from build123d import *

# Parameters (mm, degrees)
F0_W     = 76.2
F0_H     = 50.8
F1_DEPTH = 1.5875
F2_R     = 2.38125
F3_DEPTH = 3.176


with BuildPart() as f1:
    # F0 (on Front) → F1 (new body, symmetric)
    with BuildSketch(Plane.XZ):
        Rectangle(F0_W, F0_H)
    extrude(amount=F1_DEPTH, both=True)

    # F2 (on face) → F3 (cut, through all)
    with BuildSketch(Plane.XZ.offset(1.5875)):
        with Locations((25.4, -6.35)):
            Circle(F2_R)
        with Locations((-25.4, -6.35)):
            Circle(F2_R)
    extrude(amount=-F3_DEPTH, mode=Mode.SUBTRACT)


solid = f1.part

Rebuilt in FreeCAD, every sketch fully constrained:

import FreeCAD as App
import Part
import Sketcher
Q = App.Units.Quantity

doc = App.newDocument("Part")
body = doc.addObject("PartDesign::Body", "Body")

# Sketch on XZ plane
sketch1 = body.newObject("Sketcher::SketchObject", "Sketch")
sketch1.AttachmentSupport = (doc.getObject("XZ_Plane"), [""])
sketch1.MapMode = "FlatFace"
sketch1.addGeometry(Part.LineSegment(App.Vector(-38, 25, 0), App.Vector(-38, -25, 0)), False)
sketch1.addGeometry(Part.LineSegment(App.Vector(-38, -25, 0), App.Vector(38, -25, 0)), False)
sketch1.addGeometry(Part.LineSegment(App.Vector(38, -25, 0), App.Vector(38, 25, 0)), False)
sketch1.addGeometry(Part.LineSegment(App.Vector(38, 25, 0), App.Vector(-38, 25, 0)), False)
sketch1.addConstraint(Sketcher.Constraint("Coincident", 0, 2, 1, 1))
sketch1.addConstraint(Sketcher.Constraint("Coincident", 1, 2, 2, 1))
sketch1.addConstraint(Sketcher.Constraint("Coincident", 2, 2, 3, 1))
sketch1.addConstraint(Sketcher.Constraint("Coincident", 3, 2, 0, 1))
sketch1.addConstraint(Sketcher.Constraint("Vertical", 0))
sketch1.addConstraint(Sketcher.Constraint("Horizontal", 1))
sketch1.addConstraint(Sketcher.Constraint("Vertical", 2))
sketch1.addConstraint(Sketcher.Constraint("Horizontal", 3))
sketch1.addConstraint(Sketcher.Constraint("Symmetric", 0, 2, 2, 2, -1, 1))
sketch1.addConstraint(Sketcher.Constraint("DistanceX", 1, 1, 1, 2, Q("3 in")))
sketch1.addConstraint(Sketcher.Constraint("DistanceY", 0, 2, 0, 1, Q("2 in")))
pad1 = body.newObject("PartDesign::Pad", "Pad")
pad1.Profile = sketch1
pad1.Length = Q("0.125 in")
pad1.Midplane = True

# Sketch on XZ plane
sketch2 = body.newObject("Sketcher::SketchObject", "Sketch001")
sketch2.AttachmentSupport = (doc.getObject("XZ_Plane"), [""])
sketch2.MapMode = "FlatFace"
sketch2.AttachmentOffset = App.Placement(App.Vector(0, 0, 0.0625 * 25.4), App.Rotation())
sketch2.addGeometry(Part.Circle(App.Vector(25.4, -6.3, 0), App.Vector(0, 0, 1), 2.4), False)
sketch2.addGeometry(Part.Circle(App.Vector(-25.4, -6.3, 0), App.Vector(0, 0, 1), 2.4), False)
sketch2.addConstraint(Sketcher.Constraint("Equal", 0, 1))
sketch2.addConstraint(Sketcher.Constraint("Symmetric", 0, 3, 1, 3, -2))
sketch2.addConstraint(Sketcher.Constraint("Diameter", 0, Q("0.1875 in")))
sketch2.addConstraint(Sketcher.Constraint("DistanceX", -1, 1, 0, 3, Q("1 in")))
sketch2.addConstraint(Sketcher.Constraint("DistanceY", 0, 3, -1, 1, Q("0.25 in")))
pocket1 = body.newObject("PartDesign::Pocket", "Pocket")
pocket1.Profile = sketch2
pocket1.Type = "ThroughAll"

doc.recompute()
